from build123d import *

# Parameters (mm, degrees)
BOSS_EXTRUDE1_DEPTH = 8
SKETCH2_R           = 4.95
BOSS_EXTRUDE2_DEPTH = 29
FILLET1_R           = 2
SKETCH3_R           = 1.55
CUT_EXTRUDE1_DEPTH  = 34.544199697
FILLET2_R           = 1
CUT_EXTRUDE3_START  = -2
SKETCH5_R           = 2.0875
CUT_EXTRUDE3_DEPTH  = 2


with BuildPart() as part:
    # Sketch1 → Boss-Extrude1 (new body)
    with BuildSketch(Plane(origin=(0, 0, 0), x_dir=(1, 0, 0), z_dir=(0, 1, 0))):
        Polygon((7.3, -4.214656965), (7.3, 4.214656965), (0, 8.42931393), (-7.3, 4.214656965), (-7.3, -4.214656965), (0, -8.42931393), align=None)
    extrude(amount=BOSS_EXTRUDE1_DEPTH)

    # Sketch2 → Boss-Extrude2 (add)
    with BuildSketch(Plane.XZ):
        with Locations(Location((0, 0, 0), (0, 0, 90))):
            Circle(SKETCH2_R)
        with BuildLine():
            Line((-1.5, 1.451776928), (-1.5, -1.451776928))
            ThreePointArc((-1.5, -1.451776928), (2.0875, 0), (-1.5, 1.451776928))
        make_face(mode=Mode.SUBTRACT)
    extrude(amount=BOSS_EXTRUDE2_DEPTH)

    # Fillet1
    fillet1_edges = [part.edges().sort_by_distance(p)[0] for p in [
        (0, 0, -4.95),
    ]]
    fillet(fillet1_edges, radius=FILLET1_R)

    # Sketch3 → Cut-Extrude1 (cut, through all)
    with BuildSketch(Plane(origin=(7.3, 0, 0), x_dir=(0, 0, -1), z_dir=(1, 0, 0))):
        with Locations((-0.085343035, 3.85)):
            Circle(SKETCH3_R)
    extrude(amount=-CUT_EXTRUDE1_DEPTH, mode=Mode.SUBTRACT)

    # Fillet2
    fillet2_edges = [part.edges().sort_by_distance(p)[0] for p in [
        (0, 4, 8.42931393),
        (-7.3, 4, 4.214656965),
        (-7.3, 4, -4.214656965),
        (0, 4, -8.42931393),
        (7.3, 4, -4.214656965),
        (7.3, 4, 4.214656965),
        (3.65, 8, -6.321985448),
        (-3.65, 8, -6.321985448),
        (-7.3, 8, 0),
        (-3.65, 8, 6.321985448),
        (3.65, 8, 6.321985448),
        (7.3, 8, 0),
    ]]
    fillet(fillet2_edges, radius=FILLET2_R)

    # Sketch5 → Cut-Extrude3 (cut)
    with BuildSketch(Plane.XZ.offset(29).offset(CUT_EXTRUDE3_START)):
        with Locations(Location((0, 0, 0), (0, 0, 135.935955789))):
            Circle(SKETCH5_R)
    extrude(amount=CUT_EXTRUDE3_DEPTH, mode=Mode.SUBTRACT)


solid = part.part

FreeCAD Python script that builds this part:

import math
import FreeCAD as App
import Part
import Sketcher
from FreeCAD import Vector
Q = App.Units.Quantity


def edges_at(feature, points):
    """Names of the edges that pass closest to the given points."""
    edges = feature.Shape.Edges
    near = lambda p: min(range(len(edges)), key=lambda i: edges[i].distToShape(Part.Vertex(*p))[0])
    return sorted({f"Edge{near(p) + 1}" for p in points})


def add_polygon(sketch, points):
    """Adds a closed chain of lines whose ends are joined by coincident constraints."""
    first, n = sketch.GeometryCount, len(points)
    for a, b in zip(points, points[1:] + points[:1]):
        sketch.addGeometry(Part.LineSegment(App.Vector(*a, 0), App.Vector(*b, 0)), False)
    for i in range(n):
        sketch.addConstraint(Sketcher.Constraint("Coincident", first + i, 2, first + (i + 1) % n, 1))

doc = App.newDocument("Part")
params = doc.addObject("Spreadsheet::Sheet", "Params")
for row, (alias, value) in enumerate([
    ("pad1_length", "8 mm"),
    ("sketch2_diameter", "9.9 mm"),
    ("pad2_length", "29 mm"),
    ("fillet_radius", "2 mm"),
    ("sketch3_diameter", "3.1 mm"),
    ("fillet2_radius", "1 mm"),
    ("pocket2_length", "2 mm"),
], start=1):
    params.set(f"A{row}", alias)
    params.set(f"B{row}", "=" + value)
    params.setAlias(f"B{row}", alias)

body = doc.addObject("PartDesign::Body", "Body")

# Sketch on XZ plane
sketch1 = body.newObject("Sketcher::SketchObject", "Sketch")
sketch1.AttachmentSupport = (doc.getObject("XZ_Plane"), [""])
sketch1.MapMode = "FlatFace"
add_polygon(sketch1, [(7.3, 4.214657), (7.3, -4.214657), (0, -8.429314), (-7.3, -4.214657), (-7.3, 4.214657), (0, 8.429314)])  # lines 0-5
sketch1.addConstraint(Sketcher.Constraint("Vertical", 0))
sketch1.addConstraint(Sketcher.Constraint("Vertical", 3))
sketch1.addConstraint(Sketcher.Constraint("Symmetric", 0, 2, 3, 2, -1, 1))
sketch1.addConstraint(Sketcher.Constraint("Symmetric", 1, 2, 4, 2, -1, 1))
sketch1.addConstraint(Sketcher.Constraint("PointOnObject", 1, 2, -2))
sketch1.addConstraint(Sketcher.Constraint("Parallel", 2, 5))
sketch1.addConstraint(Sketcher.Constraint("Horizontal", 0, 2, 2, 2))
sketch1.addConstraint(Sketcher.Constraint("Angle", 1, Q("-150 deg")))
sketch1.addConstraint(Sketcher.Constraint("DistanceX", -1, 1, 0, 2, 7.3))
sketch1.addConstraint(Sketcher.Constraint("DistanceY", 0, 2, 0, 1, 8.429314))
pad1 = body.newObject("PartDesign::Pad", "Pad")
pad1.Profile = sketch1
pad1.setExpression("Length", "Params.pad1_length")
pad1.Reversed = True

# Sketch on XZ plane
sketch2 = body.newObject("Sketcher::SketchObject", "Sketch001")
sketch2.AttachmentSupport = (doc.getObject("XZ_Plane"), [""])
sketch2.MapMode = "FlatFace"
sketch2.addGeometry(Part.Circle(Vector(0, 0, 0), Vector(0, 0, 1), 4.95), False)
sketch2.addGeometry(Part.LineSegment(Vector(-1.5, -1.451777, 0), Vector(-1.5, 1.451777, 0)), False)
sketch2.addGeometry(Part.ArcOfCircle(Part.Circle(Vector(0, 0, 0), Vector(0, 0, 1), 2.0875), math.radians(-135.935956), math.radians(135.935956)), False)
sketch2.addConstraint(Sketcher.Constraint("Coincident", 1, 1, 2, 1))
sketch2.addConstraint(Sketcher.Constraint("Coincident", 2, 2, 1, 2))
sketch2.addConstraint(Sketcher.Constraint("Vertical", 1))
sketch2.addConstraint(Sketcher.Constraint("Coincident", 0, 3, -1, 1))
sketch2.addConstraint(Sketcher.Constraint("Coincident", 2, 3, -1, 1))
sketch2.addConstraint(Sketcher.Constraint("Diameter", 0, 9.9))
sketch2.addConstraint(Sketcher.Constraint("DistanceX", 1, 1, -1, 1, 1.5))
sketch2.addConstraint(Sketcher.Constraint("Radius", 2, 2.0875))
sketch2.setExpression("Constraints[5]", "Params.sketch2_diameter")
pad2 = body.newObject("PartDesign::Pad", "Pad001")
pad2.Profile = sketch2
pad2.setExpression("Length", "Params.pad2_length")
doc.recompute()

fillet = body.newObject("PartDesign::Fillet", "Fillet")
fillet.Base = (pad2, edges_at(pad2, [(0, 0, -4.95)]))
fillet.setExpression("Radius", "Params.fillet_radius")

# Sketch on YZ plane
sketch3 = body.newObject("Sketcher::SketchObject", "Sketch002")
sketch3.AttachmentSupport = (doc.getObject("YZ_Plane"), [""])
sketch3.MapMode = "FlatFace"
sketch3.AttachmentOffset = App.Placement(Vector(0, 0, 7.3), App.Rotation())
sketch3.addGeometry(Part.Circle(Vector(3.85, 0.085343, 0), Vector(0, 0, 1), 1.55), False)
sketch3.addConstraint(Sketcher.Constraint("Diameter", 0, 3.1))
sketch3.addConstraint(Sketcher.Constraint("DistanceX", -1, 1, 0, 3, 3.85))
sketch3.addConstraint(Sketcher.Constraint("DistanceY", -1, 1, 0, 3, 0.085343))
sketch3.setExpression("Constraints[0]", "Params.sketch3_diameter")
pocket1 = body.newObject("PartDesign::Pocket", "Pocket")
pocket1.Profile = sketch3
pocket1.Type = "ThroughAll"
doc.recompute()

fillet2 = body.newObject("PartDesign::Fillet", "Fillet001")
fillet2.Base = (pocket1, edges_at(pocket1, [
    (0, 4, 8.429),
    (-7.3, 4, 4.215),
    (-7.3, 4, -4.215),
    (0, 4, -8.429),
    (7.3, 4, -4.215),
    (7.3, 4, 4.215),
    (3.65, 8, -6.322),
    (-3.65, 8, -6.322),
    (-7.3, 8, 0),
    (-3.65, 8, 6.322),
    (3.65, 8, 6.322),
    (7.3, 8, 0),
]))
fillet2.setExpression("Radius", "Params.fillet2_radius")

# Sketch on XZ plane
sketch4 = body.newObject("Sketcher::SketchObject", "Sketch003")
sketch4.AttachmentSupport = (doc.getObject("XZ_Plane"), [""])
sketch4.MapMode = "FlatFace"
sketch4.AttachmentOffset = App.Placement(Vector(0, 0, 27), App.Rotation())
sketch4.addGeometry(Part.Circle(Vector(0, 0, 0), Vector(0, 0, 1), 2.0875), False)
sketch4.addConstraint(Sketcher.Constraint("Coincident", 0, 3, -1, 1))
sketch4.addConstraint(Sketcher.Constraint("Diameter", 0, 4.175))
pocket2 = body.newObject("PartDesign::Pocket", "Pocket001")
pocket2.Profile = sketch4
pocket2.setExpression("Length", "Params.pocket2_length")
pocket2.Reversed = True

doc.recompute()
